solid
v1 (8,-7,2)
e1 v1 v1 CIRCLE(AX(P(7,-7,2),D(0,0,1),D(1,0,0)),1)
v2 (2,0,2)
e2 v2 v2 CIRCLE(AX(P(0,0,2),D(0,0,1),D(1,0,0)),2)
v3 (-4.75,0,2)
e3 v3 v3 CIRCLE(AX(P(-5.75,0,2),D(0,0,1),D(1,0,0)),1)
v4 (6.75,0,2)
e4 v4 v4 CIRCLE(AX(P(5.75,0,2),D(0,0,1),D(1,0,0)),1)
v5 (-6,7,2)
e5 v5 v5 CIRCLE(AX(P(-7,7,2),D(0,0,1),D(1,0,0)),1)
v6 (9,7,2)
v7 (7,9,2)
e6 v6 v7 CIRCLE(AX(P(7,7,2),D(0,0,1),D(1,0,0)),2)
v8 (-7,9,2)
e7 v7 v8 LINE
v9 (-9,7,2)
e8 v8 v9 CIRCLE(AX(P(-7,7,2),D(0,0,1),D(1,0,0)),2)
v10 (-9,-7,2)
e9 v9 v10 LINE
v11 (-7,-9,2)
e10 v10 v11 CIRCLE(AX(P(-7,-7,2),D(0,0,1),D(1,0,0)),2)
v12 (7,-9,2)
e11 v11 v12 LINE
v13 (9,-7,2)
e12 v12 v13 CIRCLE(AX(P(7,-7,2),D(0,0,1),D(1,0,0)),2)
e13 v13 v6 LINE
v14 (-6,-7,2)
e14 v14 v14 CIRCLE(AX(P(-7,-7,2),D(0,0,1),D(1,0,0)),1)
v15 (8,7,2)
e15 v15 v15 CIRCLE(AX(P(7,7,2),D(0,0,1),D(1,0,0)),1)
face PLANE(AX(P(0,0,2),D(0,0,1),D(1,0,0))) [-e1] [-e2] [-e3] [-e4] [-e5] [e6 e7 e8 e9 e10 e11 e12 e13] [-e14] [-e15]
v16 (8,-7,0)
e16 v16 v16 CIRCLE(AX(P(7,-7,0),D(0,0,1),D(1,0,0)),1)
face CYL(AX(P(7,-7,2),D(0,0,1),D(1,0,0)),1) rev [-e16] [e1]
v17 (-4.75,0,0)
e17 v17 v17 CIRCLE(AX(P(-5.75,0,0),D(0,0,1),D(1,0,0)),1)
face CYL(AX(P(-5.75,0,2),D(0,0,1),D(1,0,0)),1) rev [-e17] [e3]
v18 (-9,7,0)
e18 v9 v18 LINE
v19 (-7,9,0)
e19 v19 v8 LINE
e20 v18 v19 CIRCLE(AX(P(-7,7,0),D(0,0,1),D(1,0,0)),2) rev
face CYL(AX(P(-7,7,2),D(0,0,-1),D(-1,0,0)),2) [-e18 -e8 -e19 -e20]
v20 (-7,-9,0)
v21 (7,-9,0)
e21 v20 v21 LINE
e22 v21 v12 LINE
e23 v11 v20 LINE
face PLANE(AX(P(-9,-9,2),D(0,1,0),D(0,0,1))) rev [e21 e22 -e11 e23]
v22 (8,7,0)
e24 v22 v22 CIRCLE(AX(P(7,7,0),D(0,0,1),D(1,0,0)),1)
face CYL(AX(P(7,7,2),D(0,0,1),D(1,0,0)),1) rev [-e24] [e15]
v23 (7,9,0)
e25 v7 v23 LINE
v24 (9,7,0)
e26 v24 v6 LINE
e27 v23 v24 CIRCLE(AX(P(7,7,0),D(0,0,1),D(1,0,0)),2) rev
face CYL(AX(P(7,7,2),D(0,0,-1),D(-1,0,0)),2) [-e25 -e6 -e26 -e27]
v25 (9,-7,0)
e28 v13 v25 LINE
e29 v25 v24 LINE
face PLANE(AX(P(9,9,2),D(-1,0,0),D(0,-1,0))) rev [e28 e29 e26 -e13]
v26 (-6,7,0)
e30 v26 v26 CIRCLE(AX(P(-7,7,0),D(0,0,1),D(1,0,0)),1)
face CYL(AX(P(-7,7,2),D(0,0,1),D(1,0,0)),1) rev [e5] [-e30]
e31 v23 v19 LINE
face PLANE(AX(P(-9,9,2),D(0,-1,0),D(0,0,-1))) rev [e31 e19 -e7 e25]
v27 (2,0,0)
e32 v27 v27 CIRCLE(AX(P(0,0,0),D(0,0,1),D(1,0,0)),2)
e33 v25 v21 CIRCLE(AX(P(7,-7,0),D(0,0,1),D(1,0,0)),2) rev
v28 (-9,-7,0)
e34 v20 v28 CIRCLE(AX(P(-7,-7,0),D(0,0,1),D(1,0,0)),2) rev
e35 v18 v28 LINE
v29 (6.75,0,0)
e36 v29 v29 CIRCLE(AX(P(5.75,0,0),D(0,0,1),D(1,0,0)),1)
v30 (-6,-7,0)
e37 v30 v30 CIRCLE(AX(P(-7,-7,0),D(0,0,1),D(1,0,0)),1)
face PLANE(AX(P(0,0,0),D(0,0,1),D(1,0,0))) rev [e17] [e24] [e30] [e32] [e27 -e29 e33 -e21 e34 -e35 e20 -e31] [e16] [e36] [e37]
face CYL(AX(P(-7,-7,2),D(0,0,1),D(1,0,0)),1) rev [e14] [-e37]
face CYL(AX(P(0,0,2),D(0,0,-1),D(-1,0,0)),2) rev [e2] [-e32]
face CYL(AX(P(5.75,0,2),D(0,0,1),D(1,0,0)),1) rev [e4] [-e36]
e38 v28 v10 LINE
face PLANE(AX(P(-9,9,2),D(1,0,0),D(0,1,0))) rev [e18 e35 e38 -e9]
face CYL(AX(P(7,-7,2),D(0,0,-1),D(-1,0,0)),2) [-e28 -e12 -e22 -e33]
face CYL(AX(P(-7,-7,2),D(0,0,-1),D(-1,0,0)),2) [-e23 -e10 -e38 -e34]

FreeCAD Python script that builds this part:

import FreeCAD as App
import Part
import Sketcher

V = App.Vector


def edges_at(feature, points):
    """Names of the edges that pass closest to the given points."""
    edges = feature.Shape.Edges
    near = lambda p: min(range(len(edges)), key=lambda i: edges[i].distToShape(Part.Vertex(*p))[0])
    return sorted({f"Edge{near(p) + 1}" for p in points})

doc = App.newDocument("Part")
params = doc.addObject("Spreadsheet::Sheet", "Params")
for row, (alias, value) in enumerate([
    ("sketch1_diameter", "4 mm"),
    ("sketch1_width", "18 mm"),
    ("pad1_length", "2 mm"),
    ("sketch2_diameter", "2 mm"),
    ("hole_diameter", "2 mm"),
    ("fillet_radius", "2 mm"),
    ("sketch3_diameter", "2 mm"),
    ("hole2_diameter", "2 mm"),
], start=1):
    params.set(f"A{row}", alias)
    params.set(f"B{row}", "=" + value)
    params.setAlias(f"B{row}", alias)

body = doc.addObject("PartDesign::Body", "Body")

# Sketch on XY plane
sketch1 = body.newObject("Sketcher::SketchObject", "Sketch")
sketch1.AttachmentSupport = (doc.getObject("XY_Plane"), [""])
sketch1.MapMode = "FlatFace"
sketch1.addGeometry([
    Part.LineSegment(V(-9, 9, 0), V(-9, -9, 0)),  # 0
    Part.LineSegment(V(-9, -9, 0), V(9, -9, 0)),  # 1
    Part.LineSegment(V(9, -9, 0), V(9, 9, 0)),  # 2
    Part.LineSegment(V(9, 9, 0), V(-9, 9, 0)),  # 3
    Part.Circle(V(0, 0, 0), V(0, 0, 1), 2),  # 4
], False)
sketch1.addConstraint([
    Sketcher.Constraint("Coincident", 0, 2, 1, 1),
    Sketcher.Constraint("Coincident", 1, 2, 2, 1),
    Sketcher.Constraint("Coincident", 2, 2, 3, 1),
    Sketcher.Constraint("Coincident", 3, 2, 0, 1),
    Sketcher.Constraint("Vertical", 0),
    Sketcher.Constraint("Horizontal", 1),
    Sketcher.Constraint("Vertical", 2),
    Sketcher.Constraint("Horizontal", 3),
    Sketcher.Constraint("Coincident", 4, 3, -1, 1),
    Sketcher.Constraint("Symmetric", 0, 2, 2, 2, -1, 1),
    Sketcher.Constraint("Equal", 3, 0),
    Sketcher.Constraint("Diameter", 4, 4.0),
    Sketcher.Constraint("DistanceX", 1, 1, 1, 2, 18.0),
])
sketch1.setExpression("Constraints[11]", "Params.sketch1_diameter")
sketch1.setExpression("Constraints[12]", "Params.sketch1_width")
pad1 = body.newObject("PartDesign::Pad", "Pad")
pad1.Profile = sketch1
pad1.setExpression("Length", "Params.pad1_length")

# Sketch on XY plane
sketch2 = body.newObject("Sketcher::SketchObject", "Sketch001")
sketch2.AttachmentSupport = (doc.getObject("XY_Plane"), [""])
sketch2.MapMode = "FlatFace"
sketch2.AttachmentOffset = App.Placement(V(0, 0, 2), App.Rotation())
sketch2.addGeometry([
    Part.Circle(V(-7, 7, 0), V(0, 0, 1), 1),
    Part.Circle(V(7, 7, 0), V(0, 0, 1), 1),
    Part.Circle(V(7, -7, 0), V(0, 0, 1), 1),
    Part.Circle(V(-7, -7, 0), V(0, 0, 1), 1),
], False)
sketch2.addConstraint([
    Sketcher.Constraint("Equal", 0, 1),
    Sketcher.Constraint("Equal", 1, 2),
    Sketcher.Constraint("Equal", 2, 3),
    Sketcher.Constraint("Symmetric", 0, 3, 2, 3, -1, 1),
    Sketcher.Constraint("Symmetric", 1, 3, 3, 3, -1, 1),
    Sketcher.Constraint("Symmetric", 0, 3, 1, 3, -2),
    Sketcher.Constraint("Diameter", 0, 2.0),
    Sketcher.Constraint("DistanceX", 0, 3, -1, 1, 7.0),
    Sketcher.Constraint("DistanceY", -1, 1, 0, 3, 7.0),
])
sketch2.setExpression("Constraints[6]", "Params.sketch2_diameter")
doc.recompute()
hole = body.newObject("PartDesign::Hole", "Hole")
hole.Profile = sketch2
hole.ThreadType = "None"
hole.setExpression("Diameter", "Params.hole_diameter")
hole.DepthType = "ThroughAll"
doc.recompute()

fillet = body.newObject("PartDesign::Fillet", "Fillet")
fillet.Base = (hole, edges_at(hole, [
    (9, -9, 1),
    (-9, -9, 1),
    (-9, 9, 1),
    (9, 9, 1),
]))
fillet.setExpression("Radius", "Params.fillet_radius")

# Sketch on XY plane
sketch3 = body.newObject("Sketcher::SketchObject", "Sketch002")
sketch3.AttachmentSupport = (doc.getObject("XY_Plane"), [""])
sketch3.MapMode = "FlatFace"
sketch3.AttachmentOffset = App.Placement(V(0, 0, 2), App.Rotation())
sketch3.addGeometry([
    Part.Circle(V(-5.8, 0, 0), V(0, 0, 1), 1),
    Part.Circle(V(5.8, 0, 0), V(0, 0, 1), 1),
], False)
sketch3.addConstraint([
    Sketcher.Constraint("Equal", 0, 1),
    Sketcher.Constraint("Symmetric", 0, 3, 1, 3, -1, 1),
    Sketcher.Constraint("PointOnObject", 0, 3, -1),
    Sketcher.Constraint("Diameter", 0, 2.0),
    Sketcher.Constraint("DistanceX", 0, 3, 1, 3, 11.5),
])
sketch3.setExpression("Constraints[3]", "Params.sketch3_diameter")
doc.recompute()
hole2 = body.newObject("PartDesign::Hole", "Hole001")
hole2.Profile = sketch3
hole2.ThreadType = "None"
hole2.setExpression("Diameter", "Params.hole2_diameter")
hole2.DepthType = "ThroughAll"

doc.recompute()
